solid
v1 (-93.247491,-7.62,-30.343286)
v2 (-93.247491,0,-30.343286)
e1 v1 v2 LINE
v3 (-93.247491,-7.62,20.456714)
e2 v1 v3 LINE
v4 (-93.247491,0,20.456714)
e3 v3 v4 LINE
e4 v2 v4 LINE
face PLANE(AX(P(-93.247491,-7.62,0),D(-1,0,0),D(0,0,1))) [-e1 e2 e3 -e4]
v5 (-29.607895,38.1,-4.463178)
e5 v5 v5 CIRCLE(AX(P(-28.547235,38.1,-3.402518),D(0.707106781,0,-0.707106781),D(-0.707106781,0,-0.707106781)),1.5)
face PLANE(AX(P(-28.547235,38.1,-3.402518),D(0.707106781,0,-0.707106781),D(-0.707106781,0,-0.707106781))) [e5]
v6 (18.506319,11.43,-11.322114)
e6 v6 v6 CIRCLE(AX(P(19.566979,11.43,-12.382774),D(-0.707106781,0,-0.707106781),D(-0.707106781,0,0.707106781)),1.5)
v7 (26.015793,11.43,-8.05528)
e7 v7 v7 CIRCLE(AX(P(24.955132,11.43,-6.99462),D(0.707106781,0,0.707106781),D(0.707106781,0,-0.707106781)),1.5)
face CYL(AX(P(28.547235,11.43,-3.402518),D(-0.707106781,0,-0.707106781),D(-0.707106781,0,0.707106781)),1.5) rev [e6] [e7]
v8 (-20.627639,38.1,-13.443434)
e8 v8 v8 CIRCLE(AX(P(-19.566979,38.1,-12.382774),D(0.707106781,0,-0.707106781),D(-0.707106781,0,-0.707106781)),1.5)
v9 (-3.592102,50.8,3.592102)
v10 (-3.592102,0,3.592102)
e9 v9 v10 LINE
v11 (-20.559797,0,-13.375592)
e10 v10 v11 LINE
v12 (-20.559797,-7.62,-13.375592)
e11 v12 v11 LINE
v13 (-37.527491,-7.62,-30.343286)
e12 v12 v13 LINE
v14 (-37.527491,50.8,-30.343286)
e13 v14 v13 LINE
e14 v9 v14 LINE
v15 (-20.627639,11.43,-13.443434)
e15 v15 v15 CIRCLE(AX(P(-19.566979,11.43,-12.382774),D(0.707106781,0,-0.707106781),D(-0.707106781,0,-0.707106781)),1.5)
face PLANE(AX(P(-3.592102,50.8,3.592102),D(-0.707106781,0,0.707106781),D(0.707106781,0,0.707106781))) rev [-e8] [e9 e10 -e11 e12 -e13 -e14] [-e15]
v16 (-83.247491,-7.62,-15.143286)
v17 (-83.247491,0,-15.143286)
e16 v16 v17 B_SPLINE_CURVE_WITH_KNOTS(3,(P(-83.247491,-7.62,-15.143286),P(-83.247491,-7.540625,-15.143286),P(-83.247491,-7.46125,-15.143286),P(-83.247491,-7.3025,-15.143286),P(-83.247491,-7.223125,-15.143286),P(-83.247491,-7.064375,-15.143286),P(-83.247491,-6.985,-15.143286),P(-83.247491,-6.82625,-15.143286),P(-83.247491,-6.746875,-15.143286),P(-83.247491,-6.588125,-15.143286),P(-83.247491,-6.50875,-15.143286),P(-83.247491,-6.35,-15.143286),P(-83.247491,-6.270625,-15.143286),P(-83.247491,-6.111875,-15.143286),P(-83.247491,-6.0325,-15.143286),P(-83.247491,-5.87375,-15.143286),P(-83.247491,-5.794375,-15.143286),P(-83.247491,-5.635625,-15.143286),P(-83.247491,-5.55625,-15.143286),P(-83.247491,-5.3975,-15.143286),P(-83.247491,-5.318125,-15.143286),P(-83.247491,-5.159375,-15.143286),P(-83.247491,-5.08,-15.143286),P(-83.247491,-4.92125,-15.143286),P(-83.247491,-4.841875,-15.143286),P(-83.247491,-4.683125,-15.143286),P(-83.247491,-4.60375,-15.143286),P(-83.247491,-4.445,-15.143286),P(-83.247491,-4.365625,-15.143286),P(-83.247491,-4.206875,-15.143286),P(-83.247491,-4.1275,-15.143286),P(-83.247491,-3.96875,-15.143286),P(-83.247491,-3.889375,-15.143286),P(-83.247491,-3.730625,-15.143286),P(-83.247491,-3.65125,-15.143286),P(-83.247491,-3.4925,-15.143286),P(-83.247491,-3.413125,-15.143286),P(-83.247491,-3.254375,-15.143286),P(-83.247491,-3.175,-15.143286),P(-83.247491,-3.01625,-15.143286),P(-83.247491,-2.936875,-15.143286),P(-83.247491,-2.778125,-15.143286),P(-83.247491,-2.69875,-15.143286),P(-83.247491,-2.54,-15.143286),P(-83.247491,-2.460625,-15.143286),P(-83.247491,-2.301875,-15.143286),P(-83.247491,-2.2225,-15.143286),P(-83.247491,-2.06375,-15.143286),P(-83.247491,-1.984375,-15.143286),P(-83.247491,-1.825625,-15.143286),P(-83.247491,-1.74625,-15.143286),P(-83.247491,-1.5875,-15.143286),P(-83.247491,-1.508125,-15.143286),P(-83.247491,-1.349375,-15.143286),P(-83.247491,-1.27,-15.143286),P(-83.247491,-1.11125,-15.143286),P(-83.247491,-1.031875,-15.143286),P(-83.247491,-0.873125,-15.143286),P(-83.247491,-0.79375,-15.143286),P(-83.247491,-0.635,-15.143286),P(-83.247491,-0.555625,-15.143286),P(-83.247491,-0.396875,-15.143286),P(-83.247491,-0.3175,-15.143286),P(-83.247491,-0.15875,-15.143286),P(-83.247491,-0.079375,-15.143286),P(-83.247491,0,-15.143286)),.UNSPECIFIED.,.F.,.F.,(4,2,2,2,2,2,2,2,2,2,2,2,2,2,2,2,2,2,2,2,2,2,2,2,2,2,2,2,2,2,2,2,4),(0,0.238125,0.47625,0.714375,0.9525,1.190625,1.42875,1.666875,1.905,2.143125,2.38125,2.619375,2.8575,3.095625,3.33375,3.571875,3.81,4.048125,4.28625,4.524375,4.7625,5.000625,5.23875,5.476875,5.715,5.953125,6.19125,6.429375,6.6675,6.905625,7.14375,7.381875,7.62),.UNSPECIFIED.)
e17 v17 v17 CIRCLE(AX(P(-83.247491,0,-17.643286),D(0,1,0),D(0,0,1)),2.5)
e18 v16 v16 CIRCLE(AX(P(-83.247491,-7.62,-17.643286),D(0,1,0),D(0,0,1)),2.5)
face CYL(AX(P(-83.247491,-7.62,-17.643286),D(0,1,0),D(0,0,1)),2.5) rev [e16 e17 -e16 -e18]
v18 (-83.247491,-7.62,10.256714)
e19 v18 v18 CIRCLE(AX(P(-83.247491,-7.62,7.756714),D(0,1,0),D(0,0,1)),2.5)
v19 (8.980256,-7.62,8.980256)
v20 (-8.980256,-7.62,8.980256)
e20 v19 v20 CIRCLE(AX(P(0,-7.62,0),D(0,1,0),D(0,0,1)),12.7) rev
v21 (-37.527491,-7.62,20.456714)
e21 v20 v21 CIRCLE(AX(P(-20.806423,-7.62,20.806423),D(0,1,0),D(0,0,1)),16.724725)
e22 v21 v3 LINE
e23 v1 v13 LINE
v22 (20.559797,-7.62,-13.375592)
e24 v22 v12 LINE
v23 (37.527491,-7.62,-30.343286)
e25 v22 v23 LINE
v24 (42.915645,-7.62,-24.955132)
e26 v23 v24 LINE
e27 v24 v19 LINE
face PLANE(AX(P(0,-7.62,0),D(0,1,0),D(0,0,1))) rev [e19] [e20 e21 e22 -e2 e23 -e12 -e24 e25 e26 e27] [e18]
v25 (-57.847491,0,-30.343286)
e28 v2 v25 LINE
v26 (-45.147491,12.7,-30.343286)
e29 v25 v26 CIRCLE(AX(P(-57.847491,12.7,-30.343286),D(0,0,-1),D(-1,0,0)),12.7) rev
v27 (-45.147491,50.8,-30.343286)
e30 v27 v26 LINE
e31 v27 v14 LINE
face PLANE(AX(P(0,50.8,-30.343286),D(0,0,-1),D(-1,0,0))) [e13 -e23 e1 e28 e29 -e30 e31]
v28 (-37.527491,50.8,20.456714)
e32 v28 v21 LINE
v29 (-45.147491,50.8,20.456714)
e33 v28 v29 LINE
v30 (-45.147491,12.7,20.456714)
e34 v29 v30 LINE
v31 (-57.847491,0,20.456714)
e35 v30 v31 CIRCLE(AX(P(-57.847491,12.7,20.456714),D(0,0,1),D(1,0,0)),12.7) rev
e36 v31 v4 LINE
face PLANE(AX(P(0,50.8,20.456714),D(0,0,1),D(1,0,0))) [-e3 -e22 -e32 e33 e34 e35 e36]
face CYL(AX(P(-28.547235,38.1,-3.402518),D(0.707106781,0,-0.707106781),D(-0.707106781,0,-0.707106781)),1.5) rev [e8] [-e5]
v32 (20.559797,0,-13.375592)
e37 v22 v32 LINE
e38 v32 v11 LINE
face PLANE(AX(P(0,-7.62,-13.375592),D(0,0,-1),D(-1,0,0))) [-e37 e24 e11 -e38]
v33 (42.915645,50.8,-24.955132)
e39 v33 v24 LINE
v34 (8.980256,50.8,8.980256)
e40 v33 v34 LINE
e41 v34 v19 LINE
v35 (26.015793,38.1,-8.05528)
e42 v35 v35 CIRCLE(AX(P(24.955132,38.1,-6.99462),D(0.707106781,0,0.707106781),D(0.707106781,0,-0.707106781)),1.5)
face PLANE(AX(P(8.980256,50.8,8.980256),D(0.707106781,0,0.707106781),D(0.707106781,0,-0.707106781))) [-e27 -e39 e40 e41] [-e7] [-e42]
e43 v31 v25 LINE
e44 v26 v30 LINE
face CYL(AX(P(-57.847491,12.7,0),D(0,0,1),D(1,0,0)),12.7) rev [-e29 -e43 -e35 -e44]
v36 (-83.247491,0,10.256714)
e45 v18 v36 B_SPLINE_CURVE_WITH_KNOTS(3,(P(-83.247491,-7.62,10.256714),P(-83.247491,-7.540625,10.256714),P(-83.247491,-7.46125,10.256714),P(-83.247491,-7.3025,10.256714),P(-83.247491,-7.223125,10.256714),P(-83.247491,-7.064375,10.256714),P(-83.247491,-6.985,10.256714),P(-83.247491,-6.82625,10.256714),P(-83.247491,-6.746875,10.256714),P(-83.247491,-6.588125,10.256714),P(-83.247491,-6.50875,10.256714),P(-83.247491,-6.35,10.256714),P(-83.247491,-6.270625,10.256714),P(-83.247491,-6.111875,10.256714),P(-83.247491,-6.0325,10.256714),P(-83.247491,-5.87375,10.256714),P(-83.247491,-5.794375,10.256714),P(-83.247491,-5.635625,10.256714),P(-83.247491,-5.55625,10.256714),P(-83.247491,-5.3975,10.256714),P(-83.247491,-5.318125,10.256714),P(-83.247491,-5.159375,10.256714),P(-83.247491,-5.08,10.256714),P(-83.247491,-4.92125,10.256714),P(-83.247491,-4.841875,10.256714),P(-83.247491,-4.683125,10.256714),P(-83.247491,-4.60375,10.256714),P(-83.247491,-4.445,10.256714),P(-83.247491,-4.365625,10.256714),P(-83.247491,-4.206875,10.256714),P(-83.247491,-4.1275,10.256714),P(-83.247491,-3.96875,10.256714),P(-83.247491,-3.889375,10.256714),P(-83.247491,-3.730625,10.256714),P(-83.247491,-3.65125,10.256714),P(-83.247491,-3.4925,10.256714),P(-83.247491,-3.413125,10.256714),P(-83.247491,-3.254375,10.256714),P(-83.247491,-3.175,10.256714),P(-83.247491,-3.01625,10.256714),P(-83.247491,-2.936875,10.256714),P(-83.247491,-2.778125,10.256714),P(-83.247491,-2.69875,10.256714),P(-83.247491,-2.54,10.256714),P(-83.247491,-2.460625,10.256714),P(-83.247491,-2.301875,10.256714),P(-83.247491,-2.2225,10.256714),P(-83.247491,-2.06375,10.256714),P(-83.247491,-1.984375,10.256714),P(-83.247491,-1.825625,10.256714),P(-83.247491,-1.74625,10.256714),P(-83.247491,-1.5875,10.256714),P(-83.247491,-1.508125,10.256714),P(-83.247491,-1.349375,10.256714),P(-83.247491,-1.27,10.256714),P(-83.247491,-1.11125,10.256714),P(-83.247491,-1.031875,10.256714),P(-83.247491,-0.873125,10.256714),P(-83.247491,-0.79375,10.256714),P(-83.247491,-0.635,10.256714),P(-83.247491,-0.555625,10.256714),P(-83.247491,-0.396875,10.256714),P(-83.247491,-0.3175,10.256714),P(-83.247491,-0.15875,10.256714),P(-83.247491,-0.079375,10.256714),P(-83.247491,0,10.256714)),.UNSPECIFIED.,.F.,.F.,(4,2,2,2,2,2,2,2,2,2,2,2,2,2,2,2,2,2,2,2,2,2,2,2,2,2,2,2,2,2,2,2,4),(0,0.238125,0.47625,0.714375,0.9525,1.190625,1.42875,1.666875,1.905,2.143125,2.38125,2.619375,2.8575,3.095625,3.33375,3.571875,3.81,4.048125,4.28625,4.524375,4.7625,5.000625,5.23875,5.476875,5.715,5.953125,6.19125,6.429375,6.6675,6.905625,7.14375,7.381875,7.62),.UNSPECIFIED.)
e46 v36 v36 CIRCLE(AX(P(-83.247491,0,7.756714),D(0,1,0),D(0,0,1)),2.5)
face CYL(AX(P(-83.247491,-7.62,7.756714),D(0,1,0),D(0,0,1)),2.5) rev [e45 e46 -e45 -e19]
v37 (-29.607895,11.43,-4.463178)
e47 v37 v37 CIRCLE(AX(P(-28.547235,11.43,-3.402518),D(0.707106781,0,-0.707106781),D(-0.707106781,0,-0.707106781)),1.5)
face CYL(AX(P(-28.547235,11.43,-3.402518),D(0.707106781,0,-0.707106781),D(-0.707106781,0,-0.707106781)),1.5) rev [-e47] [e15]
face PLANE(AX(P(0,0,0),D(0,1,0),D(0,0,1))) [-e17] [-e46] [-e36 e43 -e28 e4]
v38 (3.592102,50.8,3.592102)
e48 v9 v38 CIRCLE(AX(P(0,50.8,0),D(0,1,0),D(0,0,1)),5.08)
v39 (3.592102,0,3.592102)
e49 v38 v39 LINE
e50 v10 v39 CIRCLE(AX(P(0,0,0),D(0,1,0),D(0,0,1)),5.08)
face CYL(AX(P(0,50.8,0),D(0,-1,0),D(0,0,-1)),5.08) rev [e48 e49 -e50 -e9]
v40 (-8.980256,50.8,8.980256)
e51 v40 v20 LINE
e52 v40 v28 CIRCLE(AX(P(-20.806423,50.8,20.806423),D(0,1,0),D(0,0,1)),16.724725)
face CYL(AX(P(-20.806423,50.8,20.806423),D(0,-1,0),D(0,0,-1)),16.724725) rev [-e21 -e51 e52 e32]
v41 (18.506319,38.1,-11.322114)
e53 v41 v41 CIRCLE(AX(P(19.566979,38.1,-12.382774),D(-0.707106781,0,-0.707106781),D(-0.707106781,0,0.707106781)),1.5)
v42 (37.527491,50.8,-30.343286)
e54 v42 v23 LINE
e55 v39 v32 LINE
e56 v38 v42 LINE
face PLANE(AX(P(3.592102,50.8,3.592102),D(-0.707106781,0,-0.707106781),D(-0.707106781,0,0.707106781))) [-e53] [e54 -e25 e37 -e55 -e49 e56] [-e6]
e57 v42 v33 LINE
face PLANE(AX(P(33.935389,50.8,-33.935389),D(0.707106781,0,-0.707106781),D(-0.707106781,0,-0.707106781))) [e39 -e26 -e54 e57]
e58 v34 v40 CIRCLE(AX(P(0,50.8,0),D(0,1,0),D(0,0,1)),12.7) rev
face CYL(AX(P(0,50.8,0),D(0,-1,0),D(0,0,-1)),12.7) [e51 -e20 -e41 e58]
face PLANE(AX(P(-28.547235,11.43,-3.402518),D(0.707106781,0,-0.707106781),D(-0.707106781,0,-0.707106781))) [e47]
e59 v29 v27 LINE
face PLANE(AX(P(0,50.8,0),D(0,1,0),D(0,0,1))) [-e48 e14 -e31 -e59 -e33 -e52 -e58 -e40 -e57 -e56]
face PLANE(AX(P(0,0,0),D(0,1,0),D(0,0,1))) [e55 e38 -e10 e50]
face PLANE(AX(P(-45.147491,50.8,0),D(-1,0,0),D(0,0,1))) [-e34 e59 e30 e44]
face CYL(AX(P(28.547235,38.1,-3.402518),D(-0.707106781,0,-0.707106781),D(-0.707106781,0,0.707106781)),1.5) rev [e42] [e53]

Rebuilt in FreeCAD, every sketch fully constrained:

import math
import FreeCAD as App
import Part
import Sketcher
from FreeCAD import Vector
Q = App.Units.Quantity


def edges_at(feature, points):
    """Names of the edges that pass closest to the given points."""
    edges = feature.Shape.Edges
    near = lambda p: min(range(len(edges)), key=lambda i: edges[i].distToShape(Part.Vertex(*p))[0])
    return sorted({f"Edge{near(p) + 1}" for p in points})

doc = App.newDocument("Part")
body = doc.addObject("PartDesign::Body", "Body")

# Sketch on XZ plane
sketch1 = doc.addObject("Sketcher::SketchObject", "Sketch")
body.addObject(sketch1)
sketch1.AttachmentSupport = (doc.XZ_Plane, [""])
sketch1.MapMode = "FlatFace"
sketch1.addGeometry(Part.LineSegment(Vector(38, -30, 0), Vector(4, 4, 0)), False)
sketch1.addGeometry(Part.ArcOfCircle(Part.Circle(Vector(0, 0, 0), Vector(0, 0, 1), 5), math.radians(45), math.radians(135)), False)
sketch1.addGeometry(Part.LineSegment(Vector(-4, 4, 0), Vector(-38, -30, 0)), False)
sketch1.addGeometry(Part.LineSegment(Vector(-38, -30, 0), Vector(-45, -30, 0)), False)
sketch1.addGeometry(Part.LineSegment(Vector(-45, -30, 0), Vector(-45, 20, 0)), False)
sketch1.addGeometry(Part.LineSegment(Vector(-45, 20, 0), Vector(-38, 20, 0)), False)
sketch1.addGeometry(Part.ArcOfCircle(Part.Circle(Vector(-21, 21, 0), Vector(0, 0, 1), 17), math.radians(-179), math.radians(-45)), False)
sketch1.addGeometry(Part.ArcOfCircle(Part.Circle(Vector(0, 0, 0), Vector(0, 0, 1), 13), math.radians(45), math.radians(135)), False)
sketch1.addGeometry(Part.LineSegment(Vector(9, 9, 0), Vector(43, -25, 0)), False)
sketch1.addGeometry(Part.LineSegment(Vector(43, -25, 0), Vector(38, -30, 0)), False)
sketch1.addConstraint(Sketcher.Constraint("Tangent", 0, 2, 1, 1))
sketch1.addConstraint(Sketcher.Constraint("Tangent", 1, 2, 2, 1))
sketch1.addConstraint(Sketcher.Constraint("Coincident", 2, 2, 3, 1))
sketch1.addConstraint(Sketcher.Constraint("Coincident", 3, 2, 4, 1))
sketch1.addConstraint(Sketcher.Constraint("Coincident", 4, 2, 5, 1))
sketch1.addConstraint(Sketcher.Constraint("Coincident", 5, 2, 6, 1))
sketch1.addConstraint(Sketcher.Constraint("Tangent", 6, 2, 7, 2))
sketch1.addConstraint(Sketcher.Constraint("Tangent", 7, 1, 8, 1))
sketch1.addConstraint(Sketcher.Constraint("Coincident", 8, 2, 9, 1))
sketch1.addConstraint(Sketcher.Constraint("Coincident", 9, 2, 0, 1))
sketch1.addConstraint(Sketcher.Constraint("Horizontal", 3))
sketch1.addConstraint(Sketcher.Constraint("Vertical", 4))
sketch1.addConstraint(Sketcher.Constraint("Horizontal", 5))
sketch1.addConstraint(Sketcher.Constraint("Coincident", 1, 3, -1, 1))
sketch1.addConstraint(Sketcher.Constraint("Coincident", 7, 3, -1, 1))
sketch1.addConstraint(Sketcher.Constraint("Symmetric", 2, 2, 9, 2, -2))
sketch1.addConstraint(Sketcher.Constraint("Perpendicular", 0, 2))
sketch1.addConstraint(Sketcher.Constraint("Perpendicular", 2, 8))
sketch1.addConstraint(Sketcher.Constraint("Perpendicular", 8, 9))
sketch1.addConstraint(Sketcher.Constraint("Horizontal", 6, 2, 7, 1))
sketch1.addConstraint(Sketcher.Constraint("Vertical", 2, 2, 5, 2))
sketch1.addConstraint(Sketcher.Constraint("Radius", 1, Q("0.2 in")))
sketch1.addConstraint(Sketcher.Constraint("Radius", 7, Q("0.5 in")))
sketch1.addConstraint(Sketcher.Constraint("DistanceY", 4, 1, 4, 2, Q("2 in")))
sketch1.addConstraint(Sketcher.Constraint("DistanceX", 3, 2, 3, 1, Q("0.3 in")))
sketch1.addConstraint(Sketcher.Constraint("Radius", 6, Q("16.724725 mm")))
pad1 = doc.addObject("PartDesign::Pad", "Pad")
body.addObject(pad1)
pad1.Profile = sketch1
pad1.Length = Q("2 in")
pad1.Reversed = True

# Sketch on XZ plane
sketch2 = doc.addObject("Sketcher::SketchObject", "Sketch001")
body.addObject(sketch2)
sketch2.AttachmentSupport = (doc.XZ_Plane, [""])
sketch2.MapMode = "FlatFace"
sketch2.AttachmentOffset = App.Placement(Vector(0, 0, 0.3 * 25.4), App.Rotation())
sketch2.addGeometry(Part.LineSegment(Vector(20.6, -13.4, 0), Vector(-20.6, -13.4, 0)), False)
sketch2.addGeometry(Part.LineSegment(Vector(-20.6, -13.4, 0), Vector(-37.5, -30.3, 0)), False)
sketch2.addGeometry(Part.LineSegment(Vector(-37.5, -30.3, 0), Vector(-93.2, -30.3, 0)), False)
sketch2.addGeometry(Part.LineSegment(Vector(-93.2, -30.3, 0), Vector(-93.2, 20.5, 0)), False)
sketch2.addGeometry(Part.LineSegment(Vector(-93.2, 20.5, 0), Vector(-37.5, 20.5, 0)), False)
sketch2.addGeometry(Part.ArcOfCircle(Part.Circle(Vector(-20.8, 20.8, 0), Vector(0, 0, 1), 16.7), math.radians(-179), math.radians(-45)), False)
sketch2.addGeometry(Part.ArcOfCircle(Part.Circle(Vector(0, 0, 0), Vector(0, 0, 1), 12.7), math.radians(45), math.radians(135)), False)
sketch2.addGeometry(Part.LineSegment(Vector(9, 9, 0), Vector(42.9, -25, 0)), False)
sketch2.addGeometry(Part.LineSegment(Vector(42.9, -25, 0), Vector(37.5, -30.3, 0)), False)
sketch2.addGeometry(Part.LineSegment(Vector(37.5, -30.3, 0), Vector(20.6, -13.4, 0)), False)
sketch2.addGeometry(Part.Circle(Vector(-83.2, -17.6, 0), Vector(0, 0, 1), 2.5), False)
sketch2.addGeometry(Part.Circle(Vector(-83.2, 7.8, 0), Vector(0, 0, 1), 2.5), False)
sketch2.addConstraint(Sketcher.Constraint("Coincident", 0, 2, 1, 1))
sketch2.addConstraint(Sketcher.Constraint("Coincident", 1, 2, 2, 1))
sketch2.addConstraint(Sketcher.Constraint("Coincident", 2, 2, 3, 1))
sketch2.addConstraint(Sketcher.Constraint("Coincident", 3, 2, 4, 1))
sketch2.addConstraint(Sketcher.Constraint("Coincident", 4, 2, 5, 1))
sketch2.addConstraint(Sketcher.Constraint("Tangent", 5, 2, 6, 2))
sketch2.addConstraint(Sketcher.Constraint("Tangent", 6, 1, 7, 1))
sketch2.addConstraint(Sketcher.Constraint("Coincident", 7, 2, 8, 1))
sketch2.addConstraint(Sketcher.Constraint("Coincident", 8, 2, 9, 1))
sketch2.addConstraint(Sketcher.Constraint("Coincident", 9, 2, 0, 1))
sketch2.addConstraint(Sketcher.Constraint("Horizontal", 0))
sketch2.addConstraint(Sketcher.Constraint("Horizontal", 2))
sketch2.addConstraint(Sketcher.Constraint("Vertical", 3))
sketch2.addConstraint(Sketcher.Constraint("Horizontal", 4))
sketch2.addConstraint(Sketcher.Constraint("Coincident", 6, 3, -1, 1))
sketch2.addConstraint(Sketcher.Constraint("Equal", 10, 11))
sketch2.addConstraint(Sketcher.Constraint("Symmetric", 1, 2, 8, 2, -2))
sketch2.addConstraint(Sketcher.Constraint("Perpendicular", 1, 7))
sketch2.addConstraint(Sketcher.Constraint("Perpendicular", 7, 8))
sketch2.addConstraint(Sketcher.Constraint("Perpendicular", 8, 9))
sketch2.addConstraint(Sketcher.Constraint("Horizontal", 5, 2, 6, 1))
sketch2.addConstraint(Sketcher.Constraint("Vertical", 10, 3, 11, 3))
sketch2.addConstraint(Sketcher.Constraint("Vertical", 1, 2, 4, 2))
sketch2.addConstraint(Sketcher.Constraint("Equal", 1, 9))
sketch2.addConstraint(Sketcher.Constraint("Radius", 6, Q("0.5 in")))
sketch2.addConstraint(Sketcher.Constraint("DistanceY", 3, 1, 3, 2, Q("2 in")))
sketch2.addConstraint(Sketcher.Constraint("DistanceY", 10, 3, 11, 3, Q("1 in")))
sketch2.addConstraint(Sketcher.Constraint("Distance", 8, Q("0.3 in")))
sketch2.addConstraint(Sketcher.Constraint("DistanceX", 10, 3, 1, 2, Q("1.8 in")))
sketch2.addConstraint(Sketcher.Constraint("DistanceY", 1, 2, 10, 3, Q("0.5 in")))
sketch2.addConstraint(Sketcher.Constraint("Diameter", 10, Q("5 mm")))
sketch2.addConstraint(Sketcher.Constraint("DistanceX", 2, 2, 2, 1, Q("55.72 mm")))
sketch2.addConstraint(Sketcher.Constraint("Radius", 5, Q("16.724725 mm")))
sketch2.addConstraint(Sketcher.Constraint("DistanceX", 0, 2, 0, 1, Q("41.119594 mm")))
pad2 = doc.addObject("PartDesign::Pad", "Pad001")
body.addObject(pad2)
pad2.Profile = sketch2
pad2.Length = Q("0.3 in")
pad2.Reversed = True

# Sketch on an angled plane
sketch3 = doc.addObject("Sketcher::SketchObject", "Sketch002")
body.addObject(sketch3)
sketch3.Placement = App.Placement(Vector(-3.592102, 0, 3.592102), App.Rotation(Vector(-0.707106781, 0, -0.707106781), Vector(0, 0.999999999, 0), Vector(0.707106781, 0, -0.707106781), "ZXY"))
sketch3.addGeometry(Part.Circle(Vector(22.6, 38.1, 0), Vector(0, 0, 1), 1.5), False)
sketch3.addGeometry(Part.Circle(Vector(22.6, 11.4, 0), Vector(0, 0, 1), 1.5), False)
sketch3.addConstraint(Sketcher.Constraint("Equal", 0, 1))
sketch3.addConstraint(Sketcher.Constraint("Vertical", 0, 3, 1, 3))
sketch3.addConstraint(Sketcher.Constraint("DistanceY", -1, 1, 0, 3, Q("1.5 in")))
sketch3.addConstraint(Sketcher.Constraint("Diameter", 0, Q("3 mm")))
sketch3.addConstraint(Sketcher.Constraint("DistanceY", -1, 1, 1, 3, Q("0.45 in")))
sketch3.addConstraint(Sketcher.Constraint("DistanceX", -1, 1, 0, 3, Q("22.591887 mm")))
pocket1 = doc.addObject("PartDesign::Pocket", "Pocket")
body.addObject(pocket1)
pocket1.Profile = sketch3
pocket1.Length = Q("0.5 in")

# Sketch on an angled plane
sketch4 = doc.addObject("Sketcher::SketchObject", "Sketch003")
body.addObject(sketch4)
sketch4.Placement = App.Placement(Vector(3.592102, 0, 3.592102), App.Rotation(Vector(-0.707106781, 0, 0.707106781), Vector(0, 0.999999999, 0), Vector(-0.707106781, 0, -0.707106781), "ZXY"))
sketch4.addGeometry(Part.Circle(Vector(-22.6, 38.1, 0), Vector(0, 0, 1), 1.5), False)
sketch4.addGeometry(Part.Circle(Vector(-22.6, 11.4, 0), Vector(0, 0, 1), 1.5), False)
sketch4.addConstraint(Sketcher.Constraint("Equal", 0, 1))
sketch4.addConstraint(Sketcher.Constraint("Vertical", 0, 3, 1, 3))
sketch4.addConstraint(Sketcher.Constraint("DistanceY", -1, 1, 0, 3, Q("1.5 in")))
sketch4.addConstraint(Sketcher.Constraint("Diameter", 0, Q("3 mm")))
sketch4.addConstraint(Sketcher.Constraint("DistanceY", -1, 1, 1, 3, Q("0.45 in")))
sketch4.addConstraint(Sketcher.Constraint("DistanceX", 0, 3, -1, 1, Q("22.591887 mm")))
pocket2 = doc.addObject("PartDesign::Pocket", "Pocket001")
body.addObject(pocket2)
pocket2.Profile = sketch4
pocket2.Length = Q("0.5 in")
doc.recompute()

fillet = doc.addObject("PartDesign::Fillet", "Fillet")
body.addObject(fillet)
fillet.Base = (pocket2, edges_at(pocket2, [(-45.147, 0, -4.943)]))
fillet.Radius = Q("0.5 in")

doc.recompute()
